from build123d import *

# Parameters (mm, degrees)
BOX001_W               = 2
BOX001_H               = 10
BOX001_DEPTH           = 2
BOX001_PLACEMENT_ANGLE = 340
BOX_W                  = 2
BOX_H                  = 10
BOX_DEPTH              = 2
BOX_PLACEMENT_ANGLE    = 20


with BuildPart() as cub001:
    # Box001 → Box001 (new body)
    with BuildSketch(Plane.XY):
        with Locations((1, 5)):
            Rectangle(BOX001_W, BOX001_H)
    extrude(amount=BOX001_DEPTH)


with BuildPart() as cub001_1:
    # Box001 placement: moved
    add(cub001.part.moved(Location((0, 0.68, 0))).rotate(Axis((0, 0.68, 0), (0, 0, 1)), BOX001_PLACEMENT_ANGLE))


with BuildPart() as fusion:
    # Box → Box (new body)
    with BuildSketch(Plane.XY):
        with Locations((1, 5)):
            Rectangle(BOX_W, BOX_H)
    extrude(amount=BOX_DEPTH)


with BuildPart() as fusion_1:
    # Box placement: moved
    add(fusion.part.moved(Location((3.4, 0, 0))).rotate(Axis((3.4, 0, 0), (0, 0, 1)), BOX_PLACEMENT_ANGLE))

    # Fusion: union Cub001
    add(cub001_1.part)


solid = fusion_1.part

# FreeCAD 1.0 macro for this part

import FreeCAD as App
import Part
import Sketcher


def add_polygon(sketch, points):
    """Adds a closed chain of lines whose ends are joined by coincident constraints."""
    first, n = sketch.GeometryCount, len(points)
    for a, b in zip(points, points[1:] + points[:1]):
        sketch.addGeometry(Part.LineSegment(App.Vector(*a, 0), App.Vector(*b, 0)), False)
    for i in range(n):
        sketch.addConstraint(Sketcher.Constraint("Coincident", first + i, 2, first + (i + 1) % n, 1))

doc = App.newDocument("Part")
body = doc.addObject("PartDesign::Body", "Body")

# Sketch on XY plane
sketch1 = body.newObject("Sketcher::SketchObject", "Sketch")
sketch1.AttachmentSupport = (doc.getObject("XY_Plane"), [""])
sketch1.MapMode = "FlatFace"
add_polygon(sketch1, [(0, 10), (0, 0), (2, 0), (2, 10)])  # lines 0-3
sketch1.addConstraint(Sketcher.Constraint("Vertical", 0))
sketch1.addConstraint(Sketcher.Constraint("Horizontal", 1))
sketch1.addConstraint(Sketcher.Constraint("Vertical", 2))
sketch1.addConstraint(Sketcher.Constraint("Horizontal", 3))
sketch1.addConstraint(Sketcher.Constraint("Coincident", 0, 2, -1, 1))
sketch1.addConstraint(Sketcher.Constraint("DistanceX", 1, 1, 1, 2, 2.0))
sketch1.addConstraint(Sketcher.Constraint("DistanceY", 0, 2, 0, 1, 10.0))
pad1 = body.newObject("PartDesign::Pad", "Pad")
pad1.Profile = sketch1
pad1.Length = 2
body2 = doc.addObject("PartDesign::Body", "Body001")
doc.recompute()

body.Placement = App.Placement(App.Vector(0, 0.68, 0), App.Rotation(App.Vector(0, 0, 1), 340))
boolean = body2.newObject("PartDesign::Boolean", "Boolean")
boolean.Type = "Fuse"
boolean.addObjects([body])
body3 = doc.addObject("PartDesign::Body", "Body002")

# Sketch on XY plane
sketch2 = body3.newObject("Sketcher::SketchObject", "Sketch001")
sketch2.AttachmentSupport = (doc.getObject("XY_Plane002"), [""])
sketch2.MapMode = "FlatFace"
add_polygon(sketch2, [(0, 10), (0, 0), (2, 0), (2, 10)])  # lines 0-3
sketch2.addConstraint(Sketcher.Constraint("Vertical", 0))
sketch2.addConstraint(Sketcher.Constraint("Horizontal", 1))
sketch2.addConstraint(Sketcher.Constraint("Vertical", 2))
sketch2.addConstraint(Sketcher.Constraint("Horizontal", 3))
sketch2.addConstraint(Sketcher.Constraint("Coincident", 0, 2, -1, 1))
sketch2.addConstraint(Sketcher.Constraint("DistanceX", 1, 1, 1, 2, 2.0))
sketch2.addConstraint(Sketcher.Constraint("DistanceY", 0, 2, 0, 1, 10.0))
pad2 = body3.newObject("PartDesign::Pad", "Pad001")
pad2.Profile = sketch2
pad2.Length = 2
body4 = doc.addObject("PartDesign::Body", "Body003")
doc.recompute()

body3.Placement = App.Placement(App.Vector(3.4, 0, 0), App.Rotation(App.Vector(0, 0, 1), 20))
boolean2 = body4.newObject("PartDesign::Boolean", "Boolean001")
boolean2.Type = "Fuse"
boolean2.addObjects([body3])
doc.recompute()

boolean3 = body4.newObject("PartDesign::Boolean", "Boolean002")
boolean3.Type = "Fuse"
boolean3.addObjects([body2])

doc.recompute()
